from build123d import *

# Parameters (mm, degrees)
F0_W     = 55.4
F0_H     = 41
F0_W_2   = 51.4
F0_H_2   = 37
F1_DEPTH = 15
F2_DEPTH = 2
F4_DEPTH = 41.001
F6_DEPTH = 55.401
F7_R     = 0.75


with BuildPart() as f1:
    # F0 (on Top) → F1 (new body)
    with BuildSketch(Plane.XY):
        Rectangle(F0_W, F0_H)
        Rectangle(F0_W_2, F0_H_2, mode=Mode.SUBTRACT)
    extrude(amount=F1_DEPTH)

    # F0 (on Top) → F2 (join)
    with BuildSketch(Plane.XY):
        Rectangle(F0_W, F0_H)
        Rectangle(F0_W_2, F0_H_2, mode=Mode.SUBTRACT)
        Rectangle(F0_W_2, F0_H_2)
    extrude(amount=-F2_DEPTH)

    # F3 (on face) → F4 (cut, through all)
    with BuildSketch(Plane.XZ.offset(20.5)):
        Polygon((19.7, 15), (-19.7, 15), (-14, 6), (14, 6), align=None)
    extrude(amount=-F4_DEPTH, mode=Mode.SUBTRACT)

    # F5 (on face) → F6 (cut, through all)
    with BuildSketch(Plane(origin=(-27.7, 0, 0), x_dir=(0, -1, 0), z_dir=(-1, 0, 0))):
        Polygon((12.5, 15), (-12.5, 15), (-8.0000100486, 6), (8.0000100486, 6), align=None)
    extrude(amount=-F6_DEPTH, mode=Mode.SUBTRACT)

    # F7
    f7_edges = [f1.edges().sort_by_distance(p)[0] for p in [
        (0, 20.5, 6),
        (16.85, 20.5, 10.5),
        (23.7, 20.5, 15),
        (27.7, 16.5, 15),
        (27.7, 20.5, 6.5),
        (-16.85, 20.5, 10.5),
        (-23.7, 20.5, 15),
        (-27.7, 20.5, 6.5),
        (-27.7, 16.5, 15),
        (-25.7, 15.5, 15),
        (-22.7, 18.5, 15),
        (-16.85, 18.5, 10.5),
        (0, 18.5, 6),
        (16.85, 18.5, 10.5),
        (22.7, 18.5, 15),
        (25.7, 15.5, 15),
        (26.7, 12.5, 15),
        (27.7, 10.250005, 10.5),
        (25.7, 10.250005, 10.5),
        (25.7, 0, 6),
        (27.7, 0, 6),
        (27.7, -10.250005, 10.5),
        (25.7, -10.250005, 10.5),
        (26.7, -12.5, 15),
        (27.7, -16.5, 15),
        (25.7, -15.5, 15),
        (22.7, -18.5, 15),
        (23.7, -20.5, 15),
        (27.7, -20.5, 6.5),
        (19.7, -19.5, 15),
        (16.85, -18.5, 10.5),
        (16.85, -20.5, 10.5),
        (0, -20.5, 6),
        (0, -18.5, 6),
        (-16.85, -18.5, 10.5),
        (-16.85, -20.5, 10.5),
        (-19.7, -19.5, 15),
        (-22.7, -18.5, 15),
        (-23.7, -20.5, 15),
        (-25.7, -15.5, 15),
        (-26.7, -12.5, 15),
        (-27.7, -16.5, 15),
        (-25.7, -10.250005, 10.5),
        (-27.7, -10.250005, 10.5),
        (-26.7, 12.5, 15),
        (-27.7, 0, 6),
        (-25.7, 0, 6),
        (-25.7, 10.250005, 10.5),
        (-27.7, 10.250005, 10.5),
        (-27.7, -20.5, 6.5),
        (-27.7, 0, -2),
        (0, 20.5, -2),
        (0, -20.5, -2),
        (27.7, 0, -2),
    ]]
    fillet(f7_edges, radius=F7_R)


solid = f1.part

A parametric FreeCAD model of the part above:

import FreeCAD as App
import Part
import Sketcher
from FreeCAD import Vector
Q = App.Units.Quantity


def edges_at(feature, points):
    """Names of the edges that pass closest to the given points."""
    edges = feature.Shape.Edges
    near = lambda p: min(range(len(edges)), key=lambda i: edges[i].distToShape(Part.Vertex(*p))[0])
    return sorted({f"Edge{near(p) + 1}" for p in points})

doc = App.newDocument("Part")
body = doc.addObject("PartDesign::Body", "Body")

# Sketch on XY plane
sketch1 = doc.addObject("Sketcher::SketchObject", "Sketch")
body.addObject(sketch1)
sketch1.AttachmentSupport = (doc.XY_Plane, [""])
sketch1.MapMode = "FlatFace"
sketch1.addGeometry(Part.LineSegment(Vector(-28, 20, 0), Vector(-28, -20, 0)), False)
sketch1.addGeometry(Part.LineSegment(Vector(-28, -20, 0), Vector(28, -20, 0)), False)
sketch1.addGeometry(Part.LineSegment(Vector(28, -20, 0), Vector(28, 20, 0)), False)
sketch1.addGeometry(Part.LineSegment(Vector(28, 20, 0), Vector(-28, 20, 0)), False)
sketch1.addGeometry(Part.LineSegment(Vector(26, -18, 0), Vector(-26, -18, 0)), False)
sketch1.addGeometry(Part.LineSegment(Vector(-26, -18, 0), Vector(-26, 18, 0)), False)
sketch1.addGeometry(Part.LineSegment(Vector(-26, 18, 0), Vector(26, 18, 0)), False)
sketch1.addGeometry(Part.LineSegment(Vector(26, 18, 0), Vector(26, -18, 0)), False)
sketch1.addConstraint(Sketcher.Constraint("Coincident", 0, 2, 1, 1))
sketch1.addConstraint(Sketcher.Constraint("Coincident", 1, 2, 2, 1))
sketch1.addConstraint(Sketcher.Constraint("Coincident", 2, 2, 3, 1))
sketch1.addConstraint(Sketcher.Constraint("Coincident", 3, 2, 0, 1))
sketch1.addConstraint(Sketcher.Constraint("Coincident", 4, 2, 5, 1))
sketch1.addConstraint(Sketcher.Constraint("Coincident", 5, 2, 6, 1))
sketch1.addConstraint(Sketcher.Constraint("Coincident", 6, 2, 7, 1))
sketch1.addConstraint(Sketcher.Constraint("Coincident", 7, 2, 4, 1))
sketch1.addConstraint(Sketcher.Constraint("Vertical", 0))
sketch1.addConstraint(Sketcher.Constraint("Horizontal", 1))
sketch1.addConstraint(Sketcher.Constraint("Vertical", 2))
sketch1.addConstraint(Sketcher.Constraint("Horizontal", 3))
sketch1.addConstraint(Sketcher.Constraint("Horizontal", 4))
sketch1.addConstraint(Sketcher.Constraint("Vertical", 5))
sketch1.addConstraint(Sketcher.Constraint("Horizontal", 6))
sketch1.addConstraint(Sketcher.Constraint("Vertical", 7))
sketch1.addConstraint(Sketcher.Constraint("Symmetric", 0, 2, 2, 2, -1, 1))
sketch1.addConstraint(Sketcher.Constraint("Symmetric", 4, 2, 6, 2, -1, 1))
sketch1.addConstraint(Sketcher.Constraint("DistanceY", 0, 2, 0, 1, Q("41 mm")))
sketch1.addConstraint(Sketcher.Constraint("DistanceY", 5, 1, 5, 2, Q("37 mm")))
sketch1.addConstraint(Sketcher.Constraint("DistanceX", 1, 1, 1, 2, Q("55.4 mm")))
sketch1.addConstraint(Sketcher.Constraint("DistanceX", 4, 2, 4, 1, Q("51.4 mm")))
pad1 = doc.addObject("PartDesign::Pad", "Pad")
body.addObject(pad1)
pad1.Profile = sketch1
pad1.Length = 15

# Sketch on XY plane
sketch2 = doc.addObject("Sketcher::SketchObject", "Sketch001")
body.addObject(sketch2)
sketch2.AttachmentSupport = (doc.XY_Plane, [""])
sketch2.MapMode = "FlatFace"
sketch2.addGeometry(Part.LineSegment(Vector(-28, 20, 0), Vector(-28, -20, 0)), False)
sketch2.addGeometry(Part.LineSegment(Vector(-28, -20, 0), Vector(28, -20, 0)), False)
sketch2.addGeometry(Part.LineSegment(Vector(28, -20, 0), Vector(28, 20, 0)), False)
sketch2.addGeometry(Part.LineSegment(Vector(28, 20, 0), Vector(-28, 20, 0)), False)
sketch2.addConstraint(Sketcher.Constraint("Coincident", 0, 2, 1, 1))
sketch2.addConstraint(Sketcher.Constraint("Coincident", 1, 2, 2, 1))
sketch2.addConstraint(Sketcher.Constraint("Coincident", 2, 2, 3, 1))
sketch2.addConstraint(Sketcher.Constraint("Coincident", 3, 2, 0, 1))
sketch2.addConstraint(Sketcher.Constraint("Vertical", 0))
sketch2.addConstraint(Sketcher.Constraint("Horizontal", 1))
sketch2.addConstraint(Sketcher.Constraint("Vertical", 2))
sketch2.addConstraint(Sketcher.Constraint("Horizontal", 3))
sketch2.addConstraint(Sketcher.Constraint("Symmetric", 0, 2, 2, 2, -1, 1))
sketch2.addConstraint(Sketcher.Constraint("DistanceY", 0, 2, 0, 1, Q("41 mm")))
sketch2.addConstraint(Sketcher.Constraint("DistanceX", 1, 1, 1, 2, Q("55.4 mm")))
pad2 = doc.addObject("PartDesign::Pad", "Pad001")
body.addObject(pad2)
pad2.Profile = sketch2
pad2.Length = 2
pad2.Reversed = True

# Sketch on XZ plane
sketch3 = doc.addObject("Sketcher::SketchObject", "Sketch002")
body.addObject(sketch3)
sketch3.AttachmentSupport = (doc.XZ_Plane, [""])
sketch3.MapMode = "FlatFace"
sketch3.AttachmentOffset = App.Placement(Vector(0, 0, 20.5), App.Rotation())
sketch3.addGeometry(Part.LineSegment(Vector(20, 15, 0), Vector(-20, 15, 0)), False)
sketch3.addGeometry(Part.LineSegment(Vector(-20, 15, 0), Vector(-14, 6, 0)), False)
sketch3.addGeometry(Part.LineSegment(Vector(-14, 6, 0), Vector(14, 6, 0)), False)
sketch3.addGeometry(Part.LineSegment(Vector(14, 6, 0), Vector(20, 15, 0)), False)
sketch3.addConstraint(Sketcher.Constraint("Coincident", 0, 2, 1, 1))
sketch3.addConstraint(Sketcher.Constraint("Coincident", 1, 2, 2, 1))
sketch3.addConstraint(Sketcher.Constraint("Coincident", 2, 2, 3, 1))
sketch3.addConstraint(Sketcher.Constraint("Coincident", 3, 2, 0, 1))
sketch3.addConstraint(Sketcher.Constraint("Horizontal", 0))
sketch3.addConstraint(Sketcher.Constraint("Horizontal", 2))
sketch3.addConstraint(Sketcher.Constraint("Equal", 1, 3))
sketch3.addConstraint(Sketcher.Constraint("DistanceX", 2, 1, 2, 2, Q("28 mm")))
sketch3.addConstraint(Sketcher.Constraint("DistanceX", 0, 2, 0, 1, Q("39.4 mm")))
sketch3.addConstraint(Sketcher.Constraint("DistanceY", -1, 1, 0, 2, Q("15 mm")))
sketch3.addConstraint(Sketcher.Constraint("DistanceX", 1, 2, -1, 1, Q("14 mm")))
sketch3.addConstraint(Sketcher.Constraint("DistanceY", -1, 1, 1, 2, Q("6 mm")))
pocket1 = doc.addObject("PartDesign::Pocket", "Pocket")
body.addObject(pocket1)
pocket1.Profile = sketch3
pocket1.Type = "ThroughAll"

# Sketch on YZ plane
sketch4 = doc.addObject("Sketcher::SketchObject", "Sketch003")
body.addObject(sketch4)
sketch4.AttachmentSupport = (doc.YZ_Plane, [""])
sketch4.MapMode = "FlatFace"
sketch4.AttachmentOffset = App.Placement(Vector(0, 0, -27.7), App.Rotation())
sketch4.addGeometry(Part.LineSegment(Vector(-12, 15, 0), Vector(12, 15, 0)), False)
sketch4.addGeometry(Part.LineSegment(Vector(12, 15, 0), Vector(8, 6, 0)), False)
sketch4.addGeometry(Part.LineSegment(Vector(8, 6, 0), Vector(-8, 6, 0)), False)
sketch4.addGeometry(Part.LineSegment(Vector(-8, 6, 0), Vector(-12, 15, 0)), False)
sketch4.addConstraint(Sketcher.Constraint("Coincident", 0, 2, 1, 1))
sketch4.addConstraint(Sketcher.Constraint("Coincident", 1, 2, 2, 1))
sketch4.addConstraint(Sketcher.Constraint("Coincident", 2, 2, 3, 1))
sketch4.addConstraint(Sketcher.Constraint("Coincident", 3, 2, 0, 1))
sketch4.addConstraint(Sketcher.Constraint("Horizontal", 0))
sketch4.addConstraint(Sketcher.Constraint("Horizontal", 2))
sketch4.addConstraint(Sketcher.Constraint("Equal", 1, 3))
sketch4.addConstraint(Sketcher.Constraint("DistanceX", 0, 1, 0, 2, Q("25 mm")))
sketch4.addConstraint(Sketcher.Constraint("DistanceY", -1, 1, 0, 2, Q("15 mm")))
sketch4.addConstraint(Sketcher.Constraint("DistanceY", -1, 1, 1, 2, Q("6 mm")))
sketch4.addConstraint(Sketcher.Constraint("DistanceX", -1, 1, 0, 2, Q("12.5 mm")))
sketch4.addConstraint(Sketcher.Constraint("Distance", 1, Q("10.062301 mm")))
pocket2 = doc.addObject("PartDesign::Pocket", "Pocket001")
body.addObject(pocket2)
pocket2.Profile = sketch4
pocket2.Type = "ThroughAll"
pocket2.Reversed = True
doc.recompute()

fillet = doc.addObject("PartDesign::Fillet", "Fillet")
body.addObject(fillet)
fillet.Base = (pocket2, edges_at(pocket2, [
    (0, 20.5, 6),
    (16.85, 20.5, 10.5),
    (23.7, 20.5, 15),
    (27.7, 16.5, 15),
    (27.7, 20.5, 6.5),
    (-16.85, 20.5, 10.5),
    (-23.7, 20.5, 15),
    (-27.7, 20.5, 6.5),
    (-27.7, 16.5, 15),
    (-25.7, 15.5, 15),
    (-22.7, 18.5, 15),
    (-16.85, 18.5, 10.5),
    (0, 18.5, 6),
    (16.85, 18.5, 10.5),
    (22.7, 18.5, 15),
    (25.7, 15.5, 15),
    (26.7, 12.5, 15),
    (27.7, 10.25, 10.5),
    (25.7, 10.25, 10.5),
    (25.7, 0, 6),
    (27.7, 0, 6),
    (27.7, -10.25, 10.5),
    (25.7, -10.25, 10.5),
    (26.7, -12.5, 15),
    (27.7, -16.5, 15),
    (25.7, -15.5, 15),
    (22.7, -18.5, 15),
    (23.7, -20.5, 15),
    (27.7, -20.5, 6.5),
    (19.7, -19.5, 15),
    (16.85, -18.5, 10.5),
    (16.85, -20.5, 10.5),
    (0, -20.5, 6),
    (0, -18.5, 6),
    (-16.85, -18.5, 10.5),
    (-16.85, -20.5, 10.5),
    (-19.7, -19.5, 15),
    (-22.7, -18.5, 15),
    (-23.7, -20.5, 15),
    (-25.7, -15.5, 15),
    (-26.7, -12.5, 15),
    (-27.7, -16.5, 15),
    (-25.7, -10.25, 10.5),
    (-27.7, -10.25, 10.5),
    (-26.7, 12.5, 15),
    (-27.7, 0, 6),
    (-25.7, 0, 6),
    (-25.7, 10.25, 10.5),
    (-27.7, 10.25, 10.5),
    (-27.7, -20.5, 6.5),
    (-27.7, 0, -2),
    (0, 20.5, -2),
    (0, -20.5, -2),
    (27.7, 0, -2),
]))
fillet.Radius = 0.75

doc.recompute()
